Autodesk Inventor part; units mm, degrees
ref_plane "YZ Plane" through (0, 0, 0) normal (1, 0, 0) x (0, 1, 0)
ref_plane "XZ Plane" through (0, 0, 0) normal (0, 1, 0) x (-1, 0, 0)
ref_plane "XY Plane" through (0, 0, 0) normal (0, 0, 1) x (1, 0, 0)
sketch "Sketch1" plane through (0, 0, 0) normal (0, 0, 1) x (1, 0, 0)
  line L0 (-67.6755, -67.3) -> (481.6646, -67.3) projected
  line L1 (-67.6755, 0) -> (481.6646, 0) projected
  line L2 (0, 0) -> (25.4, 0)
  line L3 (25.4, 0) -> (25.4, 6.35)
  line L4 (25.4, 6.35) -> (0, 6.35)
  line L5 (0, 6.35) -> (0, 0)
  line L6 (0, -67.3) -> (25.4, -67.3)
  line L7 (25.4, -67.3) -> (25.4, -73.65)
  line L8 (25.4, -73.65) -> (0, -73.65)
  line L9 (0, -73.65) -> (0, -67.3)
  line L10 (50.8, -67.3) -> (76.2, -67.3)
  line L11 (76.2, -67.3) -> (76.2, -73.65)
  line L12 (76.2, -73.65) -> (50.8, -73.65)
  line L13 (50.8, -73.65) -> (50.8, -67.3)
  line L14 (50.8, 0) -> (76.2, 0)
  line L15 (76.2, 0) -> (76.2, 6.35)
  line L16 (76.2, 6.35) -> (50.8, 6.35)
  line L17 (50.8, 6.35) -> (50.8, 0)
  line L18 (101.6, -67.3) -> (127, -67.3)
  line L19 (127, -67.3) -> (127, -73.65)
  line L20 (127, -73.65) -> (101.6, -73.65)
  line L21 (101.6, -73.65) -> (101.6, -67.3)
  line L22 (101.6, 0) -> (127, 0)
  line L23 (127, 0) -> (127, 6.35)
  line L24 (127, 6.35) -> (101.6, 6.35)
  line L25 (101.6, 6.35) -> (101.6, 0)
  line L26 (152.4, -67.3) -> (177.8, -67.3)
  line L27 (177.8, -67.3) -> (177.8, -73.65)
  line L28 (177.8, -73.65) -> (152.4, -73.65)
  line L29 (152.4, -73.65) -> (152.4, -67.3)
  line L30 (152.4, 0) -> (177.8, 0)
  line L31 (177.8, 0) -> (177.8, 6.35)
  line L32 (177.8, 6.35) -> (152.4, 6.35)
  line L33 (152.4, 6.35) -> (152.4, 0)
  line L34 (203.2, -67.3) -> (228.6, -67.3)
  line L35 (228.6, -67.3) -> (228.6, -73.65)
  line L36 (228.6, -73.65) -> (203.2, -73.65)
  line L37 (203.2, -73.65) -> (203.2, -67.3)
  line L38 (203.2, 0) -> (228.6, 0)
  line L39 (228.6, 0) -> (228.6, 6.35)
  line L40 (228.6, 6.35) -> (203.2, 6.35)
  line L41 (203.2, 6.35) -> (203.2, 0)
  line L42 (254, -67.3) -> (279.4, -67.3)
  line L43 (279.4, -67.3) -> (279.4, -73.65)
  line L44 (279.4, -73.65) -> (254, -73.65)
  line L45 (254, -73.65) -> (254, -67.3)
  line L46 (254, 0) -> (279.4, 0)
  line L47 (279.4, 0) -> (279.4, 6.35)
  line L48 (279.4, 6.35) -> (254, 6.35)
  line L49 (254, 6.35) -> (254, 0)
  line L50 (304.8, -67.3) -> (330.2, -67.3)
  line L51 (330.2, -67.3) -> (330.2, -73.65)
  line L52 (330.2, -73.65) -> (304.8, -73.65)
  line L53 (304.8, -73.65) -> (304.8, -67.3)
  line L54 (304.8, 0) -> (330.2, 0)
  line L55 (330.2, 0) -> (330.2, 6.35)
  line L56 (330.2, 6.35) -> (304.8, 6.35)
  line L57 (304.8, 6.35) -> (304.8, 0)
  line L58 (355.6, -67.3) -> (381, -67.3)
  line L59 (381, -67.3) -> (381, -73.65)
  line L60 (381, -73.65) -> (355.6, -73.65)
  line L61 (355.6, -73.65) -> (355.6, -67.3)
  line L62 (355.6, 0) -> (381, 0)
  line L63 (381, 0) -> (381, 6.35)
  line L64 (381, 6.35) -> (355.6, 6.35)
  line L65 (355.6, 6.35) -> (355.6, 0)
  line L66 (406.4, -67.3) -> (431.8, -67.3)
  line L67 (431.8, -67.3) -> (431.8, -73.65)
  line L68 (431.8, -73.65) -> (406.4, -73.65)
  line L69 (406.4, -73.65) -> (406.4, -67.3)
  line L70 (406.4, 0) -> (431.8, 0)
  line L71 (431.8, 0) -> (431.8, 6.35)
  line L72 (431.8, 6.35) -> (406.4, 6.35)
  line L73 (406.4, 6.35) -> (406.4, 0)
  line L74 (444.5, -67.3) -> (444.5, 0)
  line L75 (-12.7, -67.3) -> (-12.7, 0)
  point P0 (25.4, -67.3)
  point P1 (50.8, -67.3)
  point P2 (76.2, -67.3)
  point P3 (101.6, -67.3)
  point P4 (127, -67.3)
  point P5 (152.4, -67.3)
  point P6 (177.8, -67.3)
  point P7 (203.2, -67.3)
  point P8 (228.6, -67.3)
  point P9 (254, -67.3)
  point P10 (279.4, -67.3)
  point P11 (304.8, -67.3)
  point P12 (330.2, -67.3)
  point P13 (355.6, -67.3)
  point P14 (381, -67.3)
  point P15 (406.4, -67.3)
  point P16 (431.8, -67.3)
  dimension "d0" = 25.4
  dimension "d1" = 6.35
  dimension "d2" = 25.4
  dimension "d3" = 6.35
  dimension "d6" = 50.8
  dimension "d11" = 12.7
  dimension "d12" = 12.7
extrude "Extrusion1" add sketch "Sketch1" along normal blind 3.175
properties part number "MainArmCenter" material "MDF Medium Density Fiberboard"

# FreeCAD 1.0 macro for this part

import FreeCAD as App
import Part
import Sketcher

V = App.Vector
Q = App.Units.Quantity


def add_polygon(sketch, points):
    """Adds a closed chain of lines whose ends are joined by coincident constraints."""
    first, n = sketch.GeometryCount, len(points)
    for a, b in zip(points, points[1:] + points[:1]):
        sketch.addGeometry(Part.LineSegment(App.Vector(*a, 0), App.Vector(*b, 0)), False)
    for i in range(n):
        sketch.addConstraint(Sketcher.Constraint("Coincident", first + i, 2, first + (i + 1) % n, 1))

doc = App.newDocument("Part")
body = doc.addObject("PartDesign::Body", "Body")

sketch1 = doc.addObject("Sketcher::SketchObject", "Sketch")
body.addObject(sketch1)
sketch1.AttachmentSupport = (doc.XY_Plane, [""])
sketch1.MapMode = "FlatFace"
add_polygon(sketch1, [(-12.7, 0), (-12.7, -67.3), (0, -67.3), (0, -73.65), (25.4, -73.65), (25.4, -67.3), (50.8, -67.3), (50.8, -73.65), (76.2, -73.65), (76.2, -67.3), (101.6, -67.3), (101.6, -73.65), (127, -73.65), (127, -67.3), (152.4, -67.3), (152.4, -73.65), (177.8, -73.65), (177.8, -67.3), (203.2, -67.3), (203.2, -73.65), (228.6, -73.65), (228.6, -67.3), (254, -67.3), (254, -73.65), (279.4, -73.65), (279.4, -67.3), (304.8, -67.3), (304.8, -73.65), (330.2, -73.65), (330.2, -67.3), (355.6, -67.3), (355.6, -73.65), (381, -73.65), (381, -67.3), (406.4, -67.3), (406.4, -73.65), (431.8, -73.65), (431.8, -67.3), (444.5, -67.3), (444.5, 0), (431.8, 0), (431.8, 6.35), (406.4, 6.35), (406.4, 0), (381, 0), (381, 6.35), (355.6, 6.35), (355.6, 0), (330.2, 0), (330.2, 6.35), (304.8, 6.35), (304.8, 0), (279.4, 0), (279.4, 6.35), (254, 6.35), (254, 0), (228.6, 0), (228.6, 6.35), (203.2, 6.35), (203.2, 0), (177.8, 0), (177.8, 6.35), (152.4, 6.35), (152.4, 0), (127, 0), (127, 6.35), (101.6, 6.35), (101.6, 0), (76.2, 0), (76.2, 6.35), (50.8, 6.35), (50.8, 0), (25.4, 0), (25.4, 6.35), (0, 6.35), (0, 0)])
sketch1.addConstraint(Sketcher.Constraint("Vertical", 0))
sketch1.addConstraint(Sketcher.Constraint("Horizontal", 1))
sketch1.addConstraint(Sketcher.Constraint("Vertical", 2))
sketch1.addConstraint(Sketcher.Constraint("Horizontal", 3))
sketch1.addConstraint(Sketcher.Constraint("Vertical", 4))
sketch1.addConstraint(Sketcher.Constraint("Horizontal", 5))
sketch1.addConstraint(Sketcher.Constraint("Vertical", 6))
sketch1.addConstraint(Sketcher.Constraint("Horizontal", 7))
sketch1.addConstraint(Sketcher.Constraint("Vertical", 8))
sketch1.addConstraint(Sketcher.Constraint("Horizontal", 9))
sketch1.addConstraint(Sketcher.Constraint("Vertical", 10))
sketch1.addConstraint(Sketcher.Constraint("Horizontal", 11))
sketch1.addConstraint(Sketcher.Constraint("Vertical", 12))
sketch1.addConstraint(Sketcher.Constraint("Horizontal", 13))
sketch1.addConstraint(Sketcher.Constraint("Vertical", 14))
sketch1.addConstraint(Sketcher.Constraint("Horizontal", 15))
sketch1.addConstraint(Sketcher.Constraint("Vertical", 16))
sketch1.addConstraint(Sketcher.Constraint("Horizontal", 17))
sketch1.addConstraint(Sketcher.Constraint("Vertical", 18))
sketch1.addConstraint(Sketcher.Constraint("Horizontal", 19))
sketch1.addConstraint(Sketcher.Constraint("Vertical", 20))
sketch1.addConstraint(Sketcher.Constraint("Horizontal", 21))
sketch1.addConstraint(Sketcher.Constraint("Vertical", 22))
sketch1.addConstraint(Sketcher.Constraint("Horizontal", 23))
sketch1.addConstraint(Sketcher.Constraint("Vertical", 24))
sketch1.addConstraint(Sketcher.Constraint("Horizontal", 25))
sketch1.addConstraint(Sketcher.Constraint("Vertical", 26))
sketch1.addConstraint(Sketcher.Constraint("Horizontal", 27))
sketch1.addConstraint(Sketcher.Constraint("Vertical", 28))
sketch1.addConstraint(Sketcher.Constraint("Horizontal", 29))
sketch1.addConstraint(Sketcher.Constraint("Vertical", 30))
sketch1.addConstraint(Sketcher.Constraint("Horizontal", 31))
sketch1.addConstraint(Sketcher.Constraint("Vertical", 32))
sketch1.addConstraint(Sketcher.Constraint("Horizontal", 33))
sketch1.addConstraint(Sketcher.Constraint("Vertical", 34))
sketch1.addConstraint(Sketcher.Constraint("Horizontal", 35))
sketch1.addConstraint(Sketcher.Constraint("Vertical", 36))
sketch1.addConstraint(Sketcher.Constraint("Horizontal", 37))
sketch1.addConstraint(Sketcher.Constraint("Vertical", 38))
sketch1.addConstraint(Sketcher.Constraint("Horizontal", 39))
sketch1.addConstraint(Sketcher.Constraint("Vertical", 40))
sketch1.addConstraint(Sketcher.Constraint("Horizontal", 41))
sketch1.addConstraint(Sketcher.Constraint("Vertical", 42))
sketch1.addConstraint(Sketcher.Constraint("Horizontal", 43))
sketch1.addConstraint(Sketcher.Constraint("Vertical", 44))
sketch1.addConstraint(Sketcher.Constraint("Horizontal", 45))
sketch1.addConstraint(Sketcher.Constraint("Vertical", 46))
sketch1.addConstraint(Sketcher.Constraint("Horizontal", 47))
sketch1.addConstraint(Sketcher.Constraint("Vertical", 48))
sketch1.addConstraint(Sketcher.Constraint("Horizontal", 49))
sketch1.addConstraint(Sketcher.Constraint("Vertical", 50))
sketch1.addConstraint(Sketcher.Constraint("Horizontal", 51))
sketch1.addConstraint(Sketcher.Constraint("Vertical", 52))
sketch1.addConstraint(Sketcher.Constraint("Horizontal", 53))
sketch1.addConstraint(Sketcher.Constraint("Vertical", 54))
sketch1.addConstraint(Sketcher.Constraint("Horizontal", 55))
sketch1.addConstraint(Sketcher.Constraint("Vertical", 56))
sketch1.addConstraint(Sketcher.Constraint("Horizontal", 57))
sketch1.addConstraint(Sketcher.Constraint("Vertical", 58))
sketch1.addConstraint(Sketcher.Constraint("Horizontal", 59))
sketch1.addConstraint(Sketcher.Constraint("Vertical", 60))
sketch1.addConstraint(Sketcher.Constraint("Horizontal", 61))
sketch1.addConstraint(Sketcher.Constraint("Vertical", 62))
sketch1.addConstraint(Sketcher.Constraint("Horizontal", 63))
sketch1.addConstraint(Sketcher.Constraint("Vertical", 64))
sketch1.addConstraint(Sketcher.Constraint("Horizontal", 65))
sketch1.addConstraint(Sketcher.Constraint("Vertical", 66))
sketch1.addConstraint(Sketcher.Constraint("Horizontal", 67))
sketch1.addConstraint(Sketcher.Constraint("Vertical", 68))
sketch1.addConstraint(Sketcher.Constraint("Horizontal", 69))
sketch1.addConstraint(Sketcher.Constraint("Vertical", 70))
sketch1.addConstraint(Sketcher.Constraint("Horizontal", 71))
sketch1.addConstraint(Sketcher.Constraint("Vertical", 72))
sketch1.addConstraint(Sketcher.Constraint("Horizontal", 73))
sketch1.addConstraint(Sketcher.Constraint("Vertical", 74))
sketch1.addConstraint(Sketcher.Constraint("Horizontal", 75))
sketch1.addConstraint(Sketcher.Constraint("Coincident", 74, 2, -1, 1))
sketch1.addConstraint(Sketcher.Constraint("PointOnObject", 1, 2, -2))
sketch1.addConstraint(Sketcher.Constraint("PointOnObject", 38, 2, -1))
sketch1.addConstraint(Sketcher.Constraint("PointOnObject", 42, 2, -1))
sketch1.addConstraint(Sketcher.Constraint("PointOnObject", 46, 2, -1))
sketch1.addConstraint(Sketcher.Constraint("PointOnObject", 50, 2, -1))
sketch1.addConstraint(Sketcher.Constraint("PointOnObject", 54, 2, -1))
sketch1.addConstraint(Sketcher.Constraint("PointOnObject", 58, 2, -1))
sketch1.addConstraint(Sketcher.Constraint("PointOnObject", 62, 2, -1))
sketch1.addConstraint(Sketcher.Constraint("PointOnObject", 66, 2, -1))
sketch1.addConstraint(Sketcher.Constraint("PointOnObject", 70, 2, -1))
sketch1.addConstraint(Sketcher.Constraint("Horizontal", 1, 2, 4, 2))
sketch1.addConstraint(Sketcher.Constraint("Horizontal", 3, 2, 6, 2))
sketch1.addConstraint(Sketcher.Constraint("Horizontal", 5, 2, 8, 2))
sketch1.addConstraint(Sketcher.Constraint("Horizontal", 7, 2, 10, 2))
sketch1.addConstraint(Sketcher.Constraint("Horizontal", 9, 2, 12, 2))
sketch1.addConstraint(Sketcher.Constraint("Horizontal", 11, 2, 14, 2))
sketch1.addConstraint(Sketcher.Constraint("Horizontal", 13, 2, 16, 2))
sketch1.addConstraint(Sketcher.Constraint("Horizontal", 15, 2, 18, 2))
sketch1.addConstraint(Sketcher.Constraint("Horizontal", 17, 2, 20, 2))
sketch1.addConstraint(Sketcher.Constraint("Horizontal", 19, 2, 22, 2))
sketch1.addConstraint(Sketcher.Constraint("Horizontal", 21, 2, 24, 2))
sketch1.addConstraint(Sketcher.Constraint("Horizontal", 23, 2, 26, 2))
sketch1.addConstraint(Sketcher.Constraint("Horizontal", 25, 2, 28, 2))
sketch1.addConstraint(Sketcher.Constraint("Horizontal", 27, 2, 30, 2))
sketch1.addConstraint(Sketcher.Constraint("Horizontal", 29, 2, 32, 2))
sketch1.addConstraint(Sketcher.Constraint("Horizontal", 31, 2, 34, 2))
sketch1.addConstraint(Sketcher.Constraint("Horizontal", 33, 2, 36, 2))
sketch1.addConstraint(Sketcher.Constraint("Horizontal", 41, 2, 44, 2))
sketch1.addConstraint(Sketcher.Constraint("Horizontal", 45, 2, 48, 2))
sketch1.addConstraint(Sketcher.Constraint("Horizontal", 49, 2, 52, 2))
sketch1.addConstraint(Sketcher.Constraint("Horizontal", 53, 2, 56, 2))
sketch1.addConstraint(Sketcher.Constraint("Horizontal", 57, 2, 60, 2))
sketch1.addConstraint(Sketcher.Constraint("Horizontal", 61, 2, 64, 2))
sketch1.addConstraint(Sketcher.Constraint("Horizontal", 65, 2, 68, 2))
sketch1.addConstraint(Sketcher.Constraint("Horizontal", 69, 2, 72, 2))
sketch1.addConstraint(Sketcher.Constraint("Vertical", 36, 2, 39, 2))
sketch1.addConstraint(Sketcher.Constraint("Vertical", 34, 2, 41, 2))
sketch1.addConstraint(Sketcher.Constraint("Vertical", 32, 2, 43, 2))
sketch1.addConstraint(Sketcher.Constraint("Vertical", 30, 2, 45, 2))
sketch1.addConstraint(Sketcher.Constraint("Vertical", 28, 2, 47, 2))
sketch1.addConstraint(Sketcher.Constraint("Vertical", 26, 2, 49, 2))
sketch1.addConstraint(Sketcher.Constraint("Vertical", 24, 2, 51, 2))
sketch1.addConstraint(Sketcher.Constraint("Vertical", 22, 2, 53, 2))
sketch1.addConstraint(Sketcher.Constraint("Vertical", 20, 2, 55, 2))
sketch1.addConstraint(Sketcher.Constraint("Vertical", 18, 2, 57, 2))
sketch1.addConstraint(Sketcher.Constraint("Vertical", 16, 2, 59, 2))
sketch1.addConstraint(Sketcher.Constraint("Vertical", 14, 2, 61, 2))
sketch1.addConstraint(Sketcher.Constraint("Vertical", 12, 2, 63, 2))
sketch1.addConstraint(Sketcher.Constraint("Vertical", 10, 2, 65, 2))
sketch1.addConstraint(Sketcher.Constraint("Vertical", 8, 2, 67, 2))
sketch1.addConstraint(Sketcher.Constraint("Vertical", 6, 2, 69, 2))
sketch1.addConstraint(Sketcher.Constraint("Vertical", 4, 2, 71, 2))
sketch1.addConstraint(Sketcher.Constraint("Equal", 3, 5))
sketch1.addConstraint(Sketcher.Constraint("Equal", 5, 7))
sketch1.addConstraint(Sketcher.Constraint("Equal", 7, 9))
sketch1.addConstraint(Sketcher.Constraint("Equal", 9, 11))
sketch1.addConstraint(Sketcher.Constraint("Equal", 11, 13))
sketch1.addConstraint(Sketcher.Constraint("Equal", 13, 15))
sketch1.addConstraint(Sketcher.Constraint("Equal", 15, 17))
sketch1.addConstraint(Sketcher.Constraint("Equal", 17, 19))
sketch1.addConstraint(Sketcher.Constraint("Equal", 19, 21))
sketch1.addConstraint(Sketcher.Constraint("Equal", 21, 23))
sketch1.addConstraint(Sketcher.Constraint("Equal", 23, 25))
sketch1.addConstraint(Sketcher.Constraint("Equal", 25, 27))
sketch1.addConstraint(Sketcher.Constraint("Equal", 27, 29))
sketch1.addConstraint(Sketcher.Constraint("Equal", 29, 31))
sketch1.addConstraint(Sketcher.Constraint("Equal", 31, 33))
sketch1.addConstraint(Sketcher.Constraint("Equal", 33, 35))
sketch1.addConstraint(Sketcher.Constraint("Equal", 1, 37))
sketch1.addConstraint(Sketcher.Constraint("Equal", 36, 40))
sketch1.addConstraint(Sketcher.Constraint("DistanceX", 3, 1, 3, 2, Q("1 in")))
sketch1.addConstraint(Sketcher.Constraint("DistanceX", 1, 1, 1, 2, Q("0.5 in")))
sketch1.addConstraint(Sketcher.Constraint("DistanceY", 2, 2, 2, 1, Q("0.25 in")))
sketch1.addConstraint(Sketcher.Constraint("DistanceY", 0, 2, 0, 1, Q("2.6496 in")))
pad1 = doc.addObject("PartDesign::Pad", "Pad")
body.addObject(pad1)
pad1.Profile = sketch1
pad1.Length = Q("0.125 in")

doc.recompute()
